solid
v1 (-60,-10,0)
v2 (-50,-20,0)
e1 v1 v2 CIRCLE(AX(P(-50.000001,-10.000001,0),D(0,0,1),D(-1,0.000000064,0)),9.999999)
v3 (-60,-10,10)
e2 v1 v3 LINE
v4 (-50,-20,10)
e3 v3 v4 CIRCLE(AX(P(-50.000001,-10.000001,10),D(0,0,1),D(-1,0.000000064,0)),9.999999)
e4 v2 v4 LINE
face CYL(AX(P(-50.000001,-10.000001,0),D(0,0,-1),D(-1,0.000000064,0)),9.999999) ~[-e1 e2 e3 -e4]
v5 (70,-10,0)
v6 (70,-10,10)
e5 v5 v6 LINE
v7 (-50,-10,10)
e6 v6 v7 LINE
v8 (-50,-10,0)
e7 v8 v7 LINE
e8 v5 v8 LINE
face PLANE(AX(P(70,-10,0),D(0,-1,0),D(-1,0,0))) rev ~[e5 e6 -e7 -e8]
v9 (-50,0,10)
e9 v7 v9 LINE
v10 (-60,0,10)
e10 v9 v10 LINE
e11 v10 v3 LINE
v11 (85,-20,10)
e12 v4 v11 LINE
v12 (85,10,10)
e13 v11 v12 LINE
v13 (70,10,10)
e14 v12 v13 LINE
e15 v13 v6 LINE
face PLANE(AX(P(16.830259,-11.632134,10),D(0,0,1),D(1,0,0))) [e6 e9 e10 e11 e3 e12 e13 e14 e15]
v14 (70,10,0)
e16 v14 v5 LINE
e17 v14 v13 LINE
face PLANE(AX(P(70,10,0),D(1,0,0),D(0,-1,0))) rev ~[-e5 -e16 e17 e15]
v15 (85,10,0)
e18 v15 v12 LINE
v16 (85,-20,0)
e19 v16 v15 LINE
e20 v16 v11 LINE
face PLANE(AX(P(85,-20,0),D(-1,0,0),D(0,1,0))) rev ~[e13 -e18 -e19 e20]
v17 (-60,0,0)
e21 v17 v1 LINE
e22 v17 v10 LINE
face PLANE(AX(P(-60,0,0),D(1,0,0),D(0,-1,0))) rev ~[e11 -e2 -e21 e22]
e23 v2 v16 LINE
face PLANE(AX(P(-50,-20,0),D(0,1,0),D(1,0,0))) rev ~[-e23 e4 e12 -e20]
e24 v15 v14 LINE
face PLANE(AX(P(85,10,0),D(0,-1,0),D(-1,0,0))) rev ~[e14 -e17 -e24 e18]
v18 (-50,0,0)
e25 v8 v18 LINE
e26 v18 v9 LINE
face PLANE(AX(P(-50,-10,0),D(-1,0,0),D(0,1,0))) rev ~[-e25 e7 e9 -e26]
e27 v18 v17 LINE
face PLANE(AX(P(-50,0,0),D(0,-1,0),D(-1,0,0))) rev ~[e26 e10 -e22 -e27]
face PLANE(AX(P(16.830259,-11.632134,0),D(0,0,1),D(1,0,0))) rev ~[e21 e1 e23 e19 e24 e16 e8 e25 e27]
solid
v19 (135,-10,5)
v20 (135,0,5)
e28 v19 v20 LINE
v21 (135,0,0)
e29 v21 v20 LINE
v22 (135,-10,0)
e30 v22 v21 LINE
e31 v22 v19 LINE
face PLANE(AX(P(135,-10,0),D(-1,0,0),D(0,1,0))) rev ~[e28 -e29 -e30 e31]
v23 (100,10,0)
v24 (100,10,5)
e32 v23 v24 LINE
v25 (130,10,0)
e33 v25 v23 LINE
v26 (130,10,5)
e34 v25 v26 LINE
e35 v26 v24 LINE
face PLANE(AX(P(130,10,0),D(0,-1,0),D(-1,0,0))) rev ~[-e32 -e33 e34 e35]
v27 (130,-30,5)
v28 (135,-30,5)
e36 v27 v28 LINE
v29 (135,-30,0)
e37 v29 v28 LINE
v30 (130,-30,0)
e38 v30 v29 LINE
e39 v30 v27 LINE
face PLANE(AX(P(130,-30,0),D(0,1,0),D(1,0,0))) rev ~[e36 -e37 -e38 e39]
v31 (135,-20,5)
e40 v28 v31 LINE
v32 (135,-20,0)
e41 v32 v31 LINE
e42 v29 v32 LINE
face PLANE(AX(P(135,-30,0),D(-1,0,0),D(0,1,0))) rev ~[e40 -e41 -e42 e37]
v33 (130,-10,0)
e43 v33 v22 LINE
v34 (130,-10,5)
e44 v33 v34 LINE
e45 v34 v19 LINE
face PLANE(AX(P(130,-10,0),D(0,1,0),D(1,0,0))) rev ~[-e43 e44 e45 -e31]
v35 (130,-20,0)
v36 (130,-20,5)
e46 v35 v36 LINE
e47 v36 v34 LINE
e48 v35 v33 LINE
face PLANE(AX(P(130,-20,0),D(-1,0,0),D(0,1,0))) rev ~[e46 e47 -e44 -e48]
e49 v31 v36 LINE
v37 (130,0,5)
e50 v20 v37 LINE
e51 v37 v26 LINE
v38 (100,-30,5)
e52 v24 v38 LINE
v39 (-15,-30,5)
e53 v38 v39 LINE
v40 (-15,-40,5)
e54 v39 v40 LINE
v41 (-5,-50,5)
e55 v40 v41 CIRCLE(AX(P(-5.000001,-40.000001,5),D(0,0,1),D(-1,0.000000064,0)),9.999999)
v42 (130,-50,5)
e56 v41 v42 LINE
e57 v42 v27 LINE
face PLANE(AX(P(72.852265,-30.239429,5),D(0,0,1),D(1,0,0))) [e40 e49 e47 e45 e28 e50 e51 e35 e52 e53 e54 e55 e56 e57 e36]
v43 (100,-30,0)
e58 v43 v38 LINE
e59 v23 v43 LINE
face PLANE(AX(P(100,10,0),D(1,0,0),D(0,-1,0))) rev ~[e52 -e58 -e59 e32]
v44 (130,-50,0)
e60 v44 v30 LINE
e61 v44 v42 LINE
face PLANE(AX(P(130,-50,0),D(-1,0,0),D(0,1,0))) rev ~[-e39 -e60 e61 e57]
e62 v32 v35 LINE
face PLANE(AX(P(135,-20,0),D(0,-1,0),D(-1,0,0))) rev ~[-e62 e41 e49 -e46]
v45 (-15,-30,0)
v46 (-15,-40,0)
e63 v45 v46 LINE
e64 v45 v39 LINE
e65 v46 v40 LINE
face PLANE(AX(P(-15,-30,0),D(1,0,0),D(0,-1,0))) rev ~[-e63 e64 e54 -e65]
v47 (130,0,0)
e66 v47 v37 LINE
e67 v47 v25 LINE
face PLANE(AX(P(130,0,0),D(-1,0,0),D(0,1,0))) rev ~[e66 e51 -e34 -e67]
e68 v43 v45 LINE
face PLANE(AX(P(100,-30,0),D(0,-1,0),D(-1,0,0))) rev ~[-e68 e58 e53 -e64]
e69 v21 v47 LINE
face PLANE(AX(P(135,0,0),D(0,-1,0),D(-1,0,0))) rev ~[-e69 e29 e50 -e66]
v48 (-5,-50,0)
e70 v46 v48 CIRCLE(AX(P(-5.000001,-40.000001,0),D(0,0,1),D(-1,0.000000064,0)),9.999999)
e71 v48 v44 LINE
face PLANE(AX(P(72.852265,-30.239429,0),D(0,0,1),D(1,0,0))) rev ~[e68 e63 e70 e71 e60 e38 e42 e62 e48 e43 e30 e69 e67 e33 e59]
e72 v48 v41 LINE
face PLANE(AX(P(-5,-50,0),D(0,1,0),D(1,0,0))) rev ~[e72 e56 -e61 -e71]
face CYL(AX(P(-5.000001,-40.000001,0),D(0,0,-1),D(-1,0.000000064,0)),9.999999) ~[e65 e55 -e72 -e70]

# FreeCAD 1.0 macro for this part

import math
import FreeCAD as App
import Part
import Sketcher

V = App.Vector
Q = App.Units.Quantity

doc = App.newDocument("Part")
body = doc.addObject("PartDesign::Body", "Body")

# Sketch on XY plane
sketch1 = body.newObject("Sketcher::SketchObject", "Sketch")
sketch1.AttachmentSupport = (doc.getObject("XY_Plane"), [""])
sketch1.MapMode = "FlatFace"
sketch1.addGeometry(Part.LineSegment(V(-50, 0, 0), V(-60, 0, 0)), False)
sketch1.addGeometry(Part.LineSegment(V(-60, 0, 0), V(-60, -10, 0)), False)
sketch1.addGeometry(Part.ArcOfCircle(Part.Circle(V(-50, -10, 0), V(0, 0, 1), 10), math.radians(180), math.radians(270)), False)
sketch1.addGeometry(Part.LineSegment(V(-50, -20, 0), V(85, -20, 0)), False)
sketch1.addGeometry(Part.LineSegment(V(85, -20, 0), V(85, 10, 0)), False)
sketch1.addGeometry(Part.LineSegment(V(85, 10, 0), V(70, 10, 0)), False)
sketch1.addGeometry(Part.LineSegment(V(70, 10, 0), V(70, -10, 0)), False)
sketch1.addGeometry(Part.LineSegment(V(70, -10, 0), V(-50, -10, 0)), False)
sketch1.addGeometry(Part.LineSegment(V(-50, -10, 0), V(-50, 0, 0)), False)
sketch1.addConstraint(Sketcher.Constraint("Coincident", 0, 2, 1, 1))
sketch1.addConstraint(Sketcher.Constraint("Tangent", 1, 2, 2, 1))
sketch1.addConstraint(Sketcher.Constraint("Tangent", 2, 2, 3, 1))
sketch1.addConstraint(Sketcher.Constraint("Coincident", 3, 2, 4, 1))
sketch1.addConstraint(Sketcher.Constraint("Coincident", 4, 2, 5, 1))
sketch1.addConstraint(Sketcher.Constraint("Coincident", 5, 2, 6, 1))
sketch1.addConstraint(Sketcher.Constraint("Coincident", 6, 2, 7, 1))
sketch1.addConstraint(Sketcher.Constraint("Coincident", 7, 2, 8, 1))
sketch1.addConstraint(Sketcher.Constraint("Coincident", 8, 2, 0, 1))
sketch1.addConstraint(Sketcher.Constraint("Horizontal", 0))
sketch1.addConstraint(Sketcher.Constraint("Vertical", 1))
sketch1.addConstraint(Sketcher.Constraint("Horizontal", 3))
sketch1.addConstraint(Sketcher.Constraint("Vertical", 4))
sketch1.addConstraint(Sketcher.Constraint("Horizontal", 5))
sketch1.addConstraint(Sketcher.Constraint("Vertical", 6))
sketch1.addConstraint(Sketcher.Constraint("Horizontal", 7))
sketch1.addConstraint(Sketcher.Constraint("Vertical", 8))
sketch1.addConstraint(Sketcher.Constraint("Coincident", 7, 2, 2, 3))
sketch1.addConstraint(Sketcher.Constraint("PointOnObject", 0, 2, -1))
sketch1.addConstraint(Sketcher.Constraint("Equal", 0, 1))
sketch1.addConstraint(Sketcher.Constraint("Radius", 2, Q("9.999999 mm")))
sketch1.addConstraint(Sketcher.Constraint("DistanceX", 3, 1, 3, 2, Q("135 mm")))
sketch1.addConstraint(Sketcher.Constraint("DistanceX", 5, 2, 5, 1, Q("15 mm")))
sketch1.addConstraint(Sketcher.Constraint("DistanceY", 4, 1, 4, 2, Q("30 mm")))
sketch1.addConstraint(Sketcher.Constraint("DistanceX", 2, 3, -1, 1, Q("50.000001 mm")))
pad1 = body.newObject("PartDesign::Pad", "Pad")
pad1.Profile = sketch1
pad1.Length = 10
body2 = doc.addObject("PartDesign::Body", "Body001")

# Sketch on XY plane
sketch2 = body2.newObject("Sketcher::SketchObject", "Sketch001")
sketch2.AttachmentSupport = (doc.getObject("XY_Plane001"), [""])
sketch2.MapMode = "FlatFace"
sketch2.addGeometry(Part.LineSegment(V(-15, -30, 0), V(-15, -40, 0)), False)
sketch2.addGeometry(Part.ArcOfCircle(Part.Circle(V(-5, -40, 0), V(0, 0, 1), 10), math.radians(180), math.radians(270)), False)
sketch2.addGeometry(Part.LineSegment(V(-5, -50, 0), V(130, -50, 0)), False)
sketch2.addGeometry(Part.LineSegment(V(130, -50, 0), V(130, -30, 0)), False)
sketch2.addGeometry(Part.LineSegment(V(130, -30, 0), V(135, -30, 0)), False)
sketch2.addGeometry(Part.LineSegment(V(135, -30, 0), V(135, -20, 0)), False)
sketch2.addGeometry(Part.LineSegment(V(135, -20, 0), V(130, -20, 0)), False)
sketch2.addGeometry(Part.LineSegment(V(130, -20, 0), V(130, -10, 0)), False)
sketch2.addGeometry(Part.LineSegment(V(130, -10, 0), V(135, -10, 0)), False)
sketch2.addGeometry(Part.LineSegment(V(135, -10, 0), V(135, 0, 0)), False)
sketch2.addGeometry(Part.LineSegment(V(135, 0, 0), V(130, 0, 0)), False)
sketch2.addGeometry(Part.LineSegment(V(130, 0, 0), V(130, 10, 0)), False)
sketch2.addGeometry(Part.LineSegment(V(130, 10, 0), V(100, 10, 0)), False)
sketch2.addGeometry(Part.LineSegment(V(100, 10, 0), V(100, -30, 0)), False)
sketch2.addGeometry(Part.LineSegment(V(100, -30, 0), V(-15, -30, 0)), False)
sketch2.addConstraint(Sketcher.Constraint("Tangent", 0, 2, 1, 1))
sketch2.addConstraint(Sketcher.Constraint("Tangent", 1, 2, 2, 1))
sketch2.addConstraint(Sketcher.Constraint("Coincident", 2, 2, 3, 1))
sketch2.addConstraint(Sketcher.Constraint("Coincident", 3, 2, 4, 1))
sketch2.addConstraint(Sketcher.Constraint("Coincident", 4, 2, 5, 1))
sketch2.addConstraint(Sketcher.Constraint("Coincident", 5, 2, 6, 1))
sketch2.addConstraint(Sketcher.Constraint("Coincident", 6, 2, 7, 1))
sketch2.addConstraint(Sketcher.Constraint("Coincident", 7, 2, 8, 1))
sketch2.addConstraint(Sketcher.Constraint("Coincident", 8, 2, 9, 1))
sketch2.addConstraint(Sketcher.Constraint("Coincident", 9, 2, 10, 1))
sketch2.addConstraint(Sketcher.Constraint("Coincident", 10, 2, 11, 1))
sketch2.addConstraint(Sketcher.Constraint("Coincident", 11, 2, 12, 1))
sketch2.addConstraint(Sketcher.Constraint("Coincident", 12, 2, 13, 1))
sketch2.addConstraint(Sketcher.Constraint("Coincident", 13, 2, 14, 1))
sketch2.addConstraint(Sketcher.Constraint("Coincident", 14, 2, 0, 1))
sketch2.addConstraint(Sketcher.Constraint("Vertical", 0))
sketch2.addConstraint(Sketcher.Constraint("Horizontal", 2))
sketch2.addConstraint(Sketcher.Constraint("Vertical", 3))
sketch2.addConstraint(Sketcher.Constraint("Horizontal", 4))
sketch2.addConstraint(Sketcher.Constraint("Vertical", 5))
sketch2.addConstraint(Sketcher.Constraint("Horizontal", 6))
sketch2.addConstraint(Sketcher.Constraint("Vertical", 7))
sketch2.addConstraint(Sketcher.Constraint("Horizontal", 8))
sketch2.addConstraint(Sketcher.Constraint("Vertical", 9))
sketch2.addConstraint(Sketcher.Constraint("Horizontal", 10))
sketch2.addConstraint(Sketcher.Constraint("Vertical", 11))
sketch2.addConstraint(Sketcher.Constraint("Horizontal", 12))
sketch2.addConstraint(Sketcher.Constraint("Vertical", 13))
sketch2.addConstraint(Sketcher.Constraint("Horizontal", 14))
sketch2.addConstraint(Sketcher.Constraint("Symmetric", 7, 2, 11, 2, -1))
sketch2.addConstraint(Sketcher.Constraint("PointOnObject", 9, 2, -1))
sketch2.addConstraint(Sketcher.Constraint("Horizontal", 4, 2, 13, 2))
sketch2.addConstraint(Sketcher.Constraint("Vertical", 3, 2, 6, 2))
sketch2.addConstraint(Sketcher.Constraint("Vertical", 5, 2, 8, 2))
sketch2.addConstraint(Sketcher.Constraint("Equal", 0, 5))
sketch2.addConstraint(Sketcher.Constraint("Equal", 5, 7))
sketch2.addConstraint(Sketcher.Constraint("Equal", 7, 9))
sketch2.addConstraint(Sketcher.Constraint("Radius", 1, Q("9.999999 mm")))
sketch2.addConstraint(Sketcher.Constraint("DistanceX", 2, 1, 2, 2, Q("135 mm")))
sketch2.addConstraint(Sketcher.Constraint("DistanceX", 4, 1, 4, 2, Q("5 mm")))
sketch2.addConstraint(Sketcher.Constraint("DistanceX", 12, 2, 12, 1, Q("30 mm")))
sketch2.addConstraint(Sketcher.Constraint("DistanceY", 0, 2, 0, 1, Q("10 mm")))
sketch2.addConstraint(Sketcher.Constraint("DistanceX", 1, 3, -1, 1, Q("5.000001 mm")))
pad2 = body2.newObject("PartDesign::Pad", "Pad001")
pad2.Profile = sketch2
pad2.Length = 5

doc.recompute()
